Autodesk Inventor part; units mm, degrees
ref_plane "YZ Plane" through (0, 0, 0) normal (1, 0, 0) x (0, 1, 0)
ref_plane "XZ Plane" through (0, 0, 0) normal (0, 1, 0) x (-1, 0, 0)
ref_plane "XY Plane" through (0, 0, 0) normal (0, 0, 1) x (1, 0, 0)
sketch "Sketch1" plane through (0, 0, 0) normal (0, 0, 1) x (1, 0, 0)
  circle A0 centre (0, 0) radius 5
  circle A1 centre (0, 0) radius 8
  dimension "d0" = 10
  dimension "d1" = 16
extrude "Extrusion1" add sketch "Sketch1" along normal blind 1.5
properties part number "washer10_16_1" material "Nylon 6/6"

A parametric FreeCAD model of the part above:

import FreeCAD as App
import Part
import Sketcher
Q = App.Units.Quantity

doc = App.newDocument("Part")
params = doc.addObject("Spreadsheet::Sheet", "Params")
for row, (alias, value) in enumerate([
    ("sketch1_diameter", "16 mm"),
    ("sketch1_diameter2", "10 mm"),
    ("pad1_length", "1.5 mm"),
], start=1):
    params.set(f"A{row}", alias)
    params.set(f"B{row}", "=" + value)
    params.setAlias(f"B{row}", alias)

body = doc.addObject("PartDesign::Body", "Body")

sketch1 = body.newObject("Sketcher::SketchObject", "Sketch")
sketch1.AttachmentSupport = (doc.getObject("XY_Plane"), [""])
sketch1.MapMode = "FlatFace"
sketch1.addGeometry([
    Part.Circle(App.Vector(0, 0, 0), App.Vector(0, 0, 1), 8),
    Part.Circle(App.Vector(0, 0, 0), App.Vector(0, 0, 1), 5),
], False)
sketch1.addConstraint([
    Sketcher.Constraint("Coincident", 0, 3, -1, 1),
    Sketcher.Constraint("Coincident", 1, 3, -1, 1),
    Sketcher.Constraint("Diameter", 0, Q("16 mm")),
    Sketcher.Constraint("Diameter", 1, Q("10 mm")),
])
sketch1.setExpression("Constraints[2]", "Params.sketch1_diameter")
sketch1.setExpression("Constraints[3]", "Params.sketch1_diameter2")
pad1 = body.newObject("PartDesign::Pad", "Pad")
pad1.Profile = sketch1
pad1.setExpression("Length", "Params.pad1_length")

doc.recompute()
